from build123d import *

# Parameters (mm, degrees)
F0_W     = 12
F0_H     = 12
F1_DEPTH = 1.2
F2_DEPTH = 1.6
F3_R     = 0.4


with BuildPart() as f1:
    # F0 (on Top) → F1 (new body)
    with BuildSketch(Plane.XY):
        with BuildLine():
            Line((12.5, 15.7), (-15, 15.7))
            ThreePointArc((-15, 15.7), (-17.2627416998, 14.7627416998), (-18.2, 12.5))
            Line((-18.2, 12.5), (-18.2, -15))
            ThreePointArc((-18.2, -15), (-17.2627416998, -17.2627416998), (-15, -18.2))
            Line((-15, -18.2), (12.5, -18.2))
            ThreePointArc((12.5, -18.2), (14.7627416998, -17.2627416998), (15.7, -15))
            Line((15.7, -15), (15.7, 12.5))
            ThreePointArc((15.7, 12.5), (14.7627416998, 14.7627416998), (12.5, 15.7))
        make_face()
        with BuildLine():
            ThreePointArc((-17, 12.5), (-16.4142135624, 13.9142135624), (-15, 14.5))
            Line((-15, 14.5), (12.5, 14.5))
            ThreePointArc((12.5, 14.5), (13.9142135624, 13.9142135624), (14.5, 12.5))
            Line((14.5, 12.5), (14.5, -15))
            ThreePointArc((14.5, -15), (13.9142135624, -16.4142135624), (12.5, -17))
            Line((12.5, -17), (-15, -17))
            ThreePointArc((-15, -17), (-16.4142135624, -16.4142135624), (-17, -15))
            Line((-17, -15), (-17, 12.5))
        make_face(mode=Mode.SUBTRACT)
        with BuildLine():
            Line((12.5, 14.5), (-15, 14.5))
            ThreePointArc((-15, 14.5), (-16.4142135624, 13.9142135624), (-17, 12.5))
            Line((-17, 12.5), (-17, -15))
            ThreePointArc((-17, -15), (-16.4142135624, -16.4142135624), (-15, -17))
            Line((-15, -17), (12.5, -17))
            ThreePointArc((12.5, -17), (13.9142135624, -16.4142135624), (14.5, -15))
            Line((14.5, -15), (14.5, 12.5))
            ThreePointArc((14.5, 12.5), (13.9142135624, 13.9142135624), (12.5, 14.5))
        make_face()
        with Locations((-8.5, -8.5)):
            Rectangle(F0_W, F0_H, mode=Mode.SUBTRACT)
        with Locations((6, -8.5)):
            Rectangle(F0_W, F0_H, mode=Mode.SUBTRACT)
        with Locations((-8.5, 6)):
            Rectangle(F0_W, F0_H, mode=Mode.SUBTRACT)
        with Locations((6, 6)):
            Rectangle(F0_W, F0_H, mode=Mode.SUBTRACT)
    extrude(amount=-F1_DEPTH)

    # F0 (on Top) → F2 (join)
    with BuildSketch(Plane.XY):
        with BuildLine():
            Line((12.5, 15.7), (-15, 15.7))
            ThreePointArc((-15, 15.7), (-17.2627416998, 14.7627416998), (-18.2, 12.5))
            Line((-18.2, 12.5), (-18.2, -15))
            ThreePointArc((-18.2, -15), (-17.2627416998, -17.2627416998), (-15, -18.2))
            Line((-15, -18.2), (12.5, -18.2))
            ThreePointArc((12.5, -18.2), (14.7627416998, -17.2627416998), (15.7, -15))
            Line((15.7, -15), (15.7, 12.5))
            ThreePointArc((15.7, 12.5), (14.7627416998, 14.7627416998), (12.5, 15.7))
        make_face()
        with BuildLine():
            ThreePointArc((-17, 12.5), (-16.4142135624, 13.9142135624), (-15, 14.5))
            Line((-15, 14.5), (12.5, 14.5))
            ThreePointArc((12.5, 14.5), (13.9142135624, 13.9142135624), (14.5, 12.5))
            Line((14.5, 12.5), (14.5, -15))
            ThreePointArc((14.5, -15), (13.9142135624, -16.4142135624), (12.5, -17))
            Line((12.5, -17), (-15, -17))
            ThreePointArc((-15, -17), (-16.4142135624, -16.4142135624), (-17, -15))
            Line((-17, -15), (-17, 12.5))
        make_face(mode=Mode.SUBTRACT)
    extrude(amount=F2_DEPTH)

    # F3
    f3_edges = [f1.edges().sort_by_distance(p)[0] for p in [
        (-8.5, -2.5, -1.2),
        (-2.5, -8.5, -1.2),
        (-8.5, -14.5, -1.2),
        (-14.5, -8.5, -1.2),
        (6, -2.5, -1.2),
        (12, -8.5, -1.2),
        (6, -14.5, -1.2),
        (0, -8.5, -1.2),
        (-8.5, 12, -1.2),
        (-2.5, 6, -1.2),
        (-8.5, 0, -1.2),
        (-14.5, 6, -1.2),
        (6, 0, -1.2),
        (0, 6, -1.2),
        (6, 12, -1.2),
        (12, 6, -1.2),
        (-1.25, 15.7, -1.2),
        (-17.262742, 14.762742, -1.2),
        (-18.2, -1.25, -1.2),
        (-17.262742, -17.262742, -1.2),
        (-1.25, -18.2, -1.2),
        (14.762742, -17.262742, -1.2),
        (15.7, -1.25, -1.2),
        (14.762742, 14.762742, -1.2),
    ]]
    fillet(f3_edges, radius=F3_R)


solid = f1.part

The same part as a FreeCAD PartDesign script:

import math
import FreeCAD as App
import Part
import Sketcher
Q = App.Units.Quantity


def edges_at(feature, points):
    """Names of the edges that pass closest to the given points."""
    edges = feature.Shape.Edges
    near = lambda p: min(range(len(edges)), key=lambda i: edges[i].distToShape(Part.Vertex(*p))[0])
    return sorted({f"Edge{near(p) + 1}" for p in points})

doc = App.newDocument("Part")
body = doc.addObject("PartDesign::Body", "Body")

# Sketch on XY plane
sketch1 = body.newObject("Sketcher::SketchObject", "Sketch")
sketch1.AttachmentSupport = (doc.getObject("XY_Plane"), [""])
sketch1.MapMode = "FlatFace"
sketch1.addGeometry([
    Part.LineSegment(App.Vector(12.5, 15.7, 0), App.Vector(-15, 15.7, 0)),  # 0
    Part.ArcOfCircle(Part.Circle(App.Vector(-15, 12.5, 0), App.Vector(0, 0, 1), 3.2), math.radians(90), math.radians(180)),  # 1
    Part.LineSegment(App.Vector(-18.2, 12.5, 0), App.Vector(-18.2, -15, 0)),  # 2
    Part.ArcOfCircle(Part.Circle(App.Vector(-15, -15, 0), App.Vector(0, 0, 1), 3.2), math.radians(180), math.radians(270)),  # 3
    Part.LineSegment(App.Vector(-15, -18.2, 0), App.Vector(12.5, -18.2, 0)),  # 4
    Part.ArcOfCircle(Part.Circle(App.Vector(12.5, -15, 0), App.Vector(0, 0, 1), 3.2), math.radians(-90), math.radians(0)),  # 5
    Part.LineSegment(App.Vector(15.7, -15, 0), App.Vector(15.7, 12.5, 0)),  # 6
    Part.ArcOfCircle(Part.Circle(App.Vector(12.5, 12.5, 0), App.Vector(0, 0, 1), 3.2), math.radians(0), math.radians(90)),  # 7
    Part.LineSegment(App.Vector(-2.5, -14.5, 0), App.Vector(-14.5, -14.5, 0)),  # 8
    Part.LineSegment(App.Vector(-14.5, -14.5, 0), App.Vector(-14.5, -2.5, 0)),  # 9
    Part.LineSegment(App.Vector(-14.5, -2.5, 0), App.Vector(-2.5, -2.5, 0)),  # 10
    Part.LineSegment(App.Vector(-2.5, -2.5, 0), App.Vector(-2.5, -14.5, 0)),  # 11
    Part.LineSegment(App.Vector(12, -14.5, 0), App.Vector(0, -14.5, 0)),  # 12
    Part.LineSegment(App.Vector(0, -14.5, 0), App.Vector(0, -2.5, 0)),  # 13
    Part.LineSegment(App.Vector(0, -2.5, 0), App.Vector(12, -2.5, 0)),  # 14
    Part.LineSegment(App.Vector(12, -2.5, 0), App.Vector(12, -14.5, 0)),  # 15
    Part.LineSegment(App.Vector(-2.5, 0, 0), App.Vector(-14.5, 0, 0)),  # 16
    Part.LineSegment(App.Vector(-14.5, 0, 0), App.Vector(-14.5, 12, 0)),  # 17
    Part.LineSegment(App.Vector(-14.5, 12, 0), App.Vector(-2.5, 12, 0)),  # 18
    Part.LineSegment(App.Vector(-2.5, 12, 0), App.Vector(-2.5, 0, 0)),  # 19
    Part.LineSegment(App.Vector(12, 0, 0), App.Vector(0, 0, 0)),  # 20
    Part.LineSegment(App.Vector(0, 0, 0), App.Vector(0, 12, 0)),  # 21
    Part.LineSegment(App.Vector(0, 12, 0), App.Vector(12, 12, 0)),  # 22
    Part.LineSegment(App.Vector(12, 12, 0), App.Vector(12, 0, 0)),  # 23
], False)
sketch1.addConstraint([
    Sketcher.Constraint("Tangent", 0, 2, 1, 1),
    Sketcher.Constraint("Tangent", 1, 2, 2, 1),
    Sketcher.Constraint("Tangent", 2, 2, 3, 1),
    Sketcher.Constraint("Tangent", 3, 2, 4, 1),
    Sketcher.Constraint("Tangent", 4, 2, 5, 1),
    Sketcher.Constraint("Tangent", 5, 2, 6, 1),
    Sketcher.Constraint("Tangent", 6, 2, 7, 1),
    Sketcher.Constraint("Tangent", 7, 2, 0, 1),
    Sketcher.Constraint("Coincident", 8, 2, 9, 1),
    Sketcher.Constraint("Coincident", 9, 2, 10, 1),
    Sketcher.Constraint("Coincident", 10, 2, 11, 1),
    Sketcher.Constraint("Coincident", 11, 2, 8, 1),
    Sketcher.Constraint("Coincident", 12, 2, 13, 1),
    Sketcher.Constraint("Coincident", 13, 2, 14, 1),
    Sketcher.Constraint("Coincident", 14, 2, 15, 1),
    Sketcher.Constraint("Coincident", 15, 2, 12, 1),
    Sketcher.Constraint("Coincident", 16, 2, 17, 1),
    Sketcher.Constraint("Coincident", 17, 2, 18, 1),
    Sketcher.Constraint("Coincident", 18, 2, 19, 1),
    Sketcher.Constraint("Coincident", 19, 2, 16, 1),
    Sketcher.Constraint("Coincident", 20, 2, 21, 1),
    Sketcher.Constraint("Coincident", 21, 2, 22, 1),
    Sketcher.Constraint("Coincident", 22, 2, 23, 1),
    Sketcher.Constraint("Coincident", 23, 2, 20, 1),
    Sketcher.Constraint("Horizontal", 0),
    Sketcher.Constraint("Vertical", 2),
    Sketcher.Constraint("Horizontal", 4),
    Sketcher.Constraint("Vertical", 6),
    Sketcher.Constraint("Horizontal", 8),
    Sketcher.Constraint("Vertical", 9),
    Sketcher.Constraint("Horizontal", 10),
    Sketcher.Constraint("Vertical", 11),
    Sketcher.Constraint("Horizontal", 12),
    Sketcher.Constraint("Vertical", 13),
    Sketcher.Constraint("Horizontal", 14),
    Sketcher.Constraint("Vertical", 15),
    Sketcher.Constraint("Horizontal", 16),
    Sketcher.Constraint("Vertical", 17),
    Sketcher.Constraint("Horizontal", 18),
    Sketcher.Constraint("Vertical", 19),
    Sketcher.Constraint("Horizontal", 20),
    Sketcher.Constraint("Vertical", 21),
    Sketcher.Constraint("Horizontal", 22),
    Sketcher.Constraint("Vertical", 23),
    Sketcher.Constraint("Coincident", 20, 2, -1, 1),
    Sketcher.Constraint("Equal", 1, 3),
    Sketcher.Constraint("Equal", 3, 5),
    Sketcher.Constraint("Equal", 5, 7),
    Sketcher.Constraint("PointOnObject", 12, 2, -2),
    Sketcher.Constraint("PointOnObject", 16, 2, -1),
    Sketcher.Constraint("Horizontal", 11, 2, 12, 2),
    Sketcher.Constraint("Horizontal", 10, 2, 13, 2),
    Sketcher.Constraint("Horizontal", 18, 2, 21, 2),
    Sketcher.Constraint("Vertical", 9, 2, 16, 2),
    Sketcher.Constraint("Vertical", 11, 2, 18, 2),
    Sketcher.Constraint("Vertical", 15, 2, 22, 2),
    Sketcher.Constraint("Equal", 10, 12),
    Sketcher.Constraint("Equal", 4, 2),
    Sketcher.Constraint("Equal", 22, 9),
    Sketcher.Constraint("Equal", 15, 17),
    Sketcher.Constraint("Radius", 1, Q("3.2 mm")),
    Sketcher.Constraint("DistanceX", 8, 2, 8, 1, Q("12 mm")),
    Sketcher.Constraint("DistanceX", 0, 2, 0, 1, Q("27.5 mm")),
    Sketcher.Constraint("DistanceX", 1, 3, -1, 1, Q("15 mm")),
    Sketcher.Constraint("DistanceY", 3, 3, -1, 1, Q("15 mm")),
    Sketcher.Constraint("DistanceY", 8, 2, 1, 3, Q("27 mm")),
    Sketcher.Constraint("DistanceX", 8, 2, 5, 3, Q("27 mm")),
])
pad1 = body.newObject("PartDesign::Pad", "Pad")
pad1.Profile = sketch1
pad1.Length = 1.2
pad1.Reversed = True

# Sketch on XY plane
sketch2 = body.newObject("Sketcher::SketchObject", "Sketch001")
sketch2.AttachmentSupport = (doc.getObject("XY_Plane"), [""])
sketch2.MapMode = "FlatFace"
sketch2.addGeometry([
    Part.LineSegment(App.Vector(12.5, 15.7, 0), App.Vector(-15, 15.7, 0)),  # 0
    Part.ArcOfCircle(Part.Circle(App.Vector(-15, 12.5, 0), App.Vector(0, 0, 1), 3.2), math.radians(90), math.radians(180)),  # 1
    Part.LineSegment(App.Vector(-18.2, 12.5, 0), App.Vector(-18.2, -15, 0)),  # 2
    Part.ArcOfCircle(Part.Circle(App.Vector(-15, -15, 0), App.Vector(0, 0, 1), 3.2), math.radians(180), math.radians(270)),  # 3
    Part.LineSegment(App.Vector(-15, -18.2, 0), App.Vector(12.5, -18.2, 0)),  # 4
    Part.ArcOfCircle(Part.Circle(App.Vector(12.5, -15, 0), App.Vector(0, 0, 1), 3.2), math.radians(-90), math.radians(0)),  # 5
    Part.LineSegment(App.Vector(15.7, -15, 0), App.Vector(15.7, 12.5, 0)),  # 6
    Part.ArcOfCircle(Part.Circle(App.Vector(12.5, 12.5, 0), App.Vector(0, 0, 1), 3.2), math.radians(0), math.radians(90)),  # 7
    Part.LineSegment(App.Vector(-17, -15, 0), App.Vector(-17, 12.5, 0)),  # 8
    Part.ArcOfCircle(Part.Circle(App.Vector(-15, 12.5, 0), App.Vector(0, 0, 1), 2), math.radians(90), math.radians(180)),  # 9
    Part.LineSegment(App.Vector(-15, 14.5, 0), App.Vector(12.5, 14.5, 0)),  # 10
    Part.ArcOfCircle(Part.Circle(App.Vector(12.5, 12.5, 0), App.Vector(0, 0, 1), 2), math.radians(0), math.radians(90)),  # 11
    Part.LineSegment(App.Vector(14.5, 12.5, 0), App.Vector(14.5, -15, 0)),  # 12
    Part.ArcOfCircle(Part.Circle(App.Vector(12.5, -15, 0), App.Vector(0, 0, 1), 2), math.radians(-90), math.radians(0)),  # 13
    Part.LineSegment(App.Vector(12.5, -17, 0), App.Vector(-15, -17, 0)),  # 14
    Part.ArcOfCircle(Part.Circle(App.Vector(-15, -15, 0), App.Vector(0, 0, 1), 2), math.radians(180), math.radians(270)),  # 15
], False)
sketch2.addConstraint([
    Sketcher.Constraint("Tangent", 0, 2, 1, 1),
    Sketcher.Constraint("Tangent", 1, 2, 2, 1),
    Sketcher.Constraint("Tangent", 2, 2, 3, 1),
    Sketcher.Constraint("Tangent", 3, 2, 4, 1),
    Sketcher.Constraint("Tangent", 4, 2, 5, 1),
    Sketcher.Constraint("Tangent", 5, 2, 6, 1),
    Sketcher.Constraint("Tangent", 6, 2, 7, 1),
    Sketcher.Constraint("Tangent", 7, 2, 0, 1),
    Sketcher.Constraint("Tangent", 8, 2, 9, 2),
    Sketcher.Constraint("Tangent", 9, 1, 10, 1),
    Sketcher.Constraint("Tangent", 10, 2, 11, 2),
    Sketcher.Constraint("Tangent", 11, 1, 12, 1),
    Sketcher.Constraint("Tangent", 12, 2, 13, 2),
    Sketcher.Constraint("Tangent", 13, 1, 14, 1),
    Sketcher.Constraint("Tangent", 14, 2, 15, 2),
    Sketcher.Constraint("Tangent", 15, 1, 8, 1),
    Sketcher.Constraint("Horizontal", 0),
    Sketcher.Constraint("Vertical", 2),
    Sketcher.Constraint("Horizontal", 4),
    Sketcher.Constraint("Vertical", 6),
    Sketcher.Constraint("Vertical", 8),
    Sketcher.Constraint("Horizontal", 10),
    Sketcher.Constraint("Vertical", 12),
    Sketcher.Constraint("Horizontal", 14),
    Sketcher.Constraint("Coincident", 9, 3, 1, 3),
    Sketcher.Constraint("Coincident", 11, 3, 7, 3),
    Sketcher.Constraint("Coincident", 13, 3, 5, 3),
    Sketcher.Constraint("Equal", 1, 3),
    Sketcher.Constraint("Equal", 3, 5),
    Sketcher.Constraint("Equal", 5, 7),
    Sketcher.Constraint("Equal", 13, 15),
    Sketcher.Constraint("Equal", 14, 2),
    Sketcher.Constraint("Radius", 9, Q("2 mm")),
    Sketcher.Constraint("Radius", 1, Q("3.2 mm")),
    Sketcher.Constraint("DistanceX", 0, 2, 0, 1, Q("27.5 mm")),
    Sketcher.Constraint("DistanceX", 1, 3, -1, 1, Q("15 mm")),
    Sketcher.Constraint("DistanceY", 3, 3, -1, 1, Q("15 mm")),
])
pad2 = body.newObject("PartDesign::Pad", "Pad001")
pad2.Profile = sketch2
pad2.Length = 1.6
doc.recompute()

fillet = body.newObject("PartDesign::Fillet", "Fillet")
fillet.Base = (pad2, edges_at(pad2, [
    (-8.5, -2.5, -1.2),
    (-2.5, -8.5, -1.2),
    (-8.5, -14.5, -1.2),
    (-14.5, -8.5, -1.2),
    (6, -2.5, -1.2),
    (12, -8.5, -1.2),
    (6, -14.5, -1.2),
    (0, -8.5, -1.2),
    (-8.5, 12, -1.2),
    (-2.5, 6, -1.2),
    (-8.5, 0, -1.2),
    (-14.5, 6, -1.2),
    (6, 0, -1.2),
    (0, 6, -1.2),
    (6, 12, -1.2),
    (12, 6, -1.2),
    (-1.25, 15.7, -1.2),
    (-17.263, 14.763, -1.2),
    (-18.2, -1.25, -1.2),
    (-17.263, -17.263, -1.2),
    (-1.25, -18.2, -1.2),
    (14.763, -17.263, -1.2),
    (15.7, -1.25, -1.2),
    (14.763, 14.763, -1.2),
]))
fillet.Radius = 0.4

doc.recompute()
